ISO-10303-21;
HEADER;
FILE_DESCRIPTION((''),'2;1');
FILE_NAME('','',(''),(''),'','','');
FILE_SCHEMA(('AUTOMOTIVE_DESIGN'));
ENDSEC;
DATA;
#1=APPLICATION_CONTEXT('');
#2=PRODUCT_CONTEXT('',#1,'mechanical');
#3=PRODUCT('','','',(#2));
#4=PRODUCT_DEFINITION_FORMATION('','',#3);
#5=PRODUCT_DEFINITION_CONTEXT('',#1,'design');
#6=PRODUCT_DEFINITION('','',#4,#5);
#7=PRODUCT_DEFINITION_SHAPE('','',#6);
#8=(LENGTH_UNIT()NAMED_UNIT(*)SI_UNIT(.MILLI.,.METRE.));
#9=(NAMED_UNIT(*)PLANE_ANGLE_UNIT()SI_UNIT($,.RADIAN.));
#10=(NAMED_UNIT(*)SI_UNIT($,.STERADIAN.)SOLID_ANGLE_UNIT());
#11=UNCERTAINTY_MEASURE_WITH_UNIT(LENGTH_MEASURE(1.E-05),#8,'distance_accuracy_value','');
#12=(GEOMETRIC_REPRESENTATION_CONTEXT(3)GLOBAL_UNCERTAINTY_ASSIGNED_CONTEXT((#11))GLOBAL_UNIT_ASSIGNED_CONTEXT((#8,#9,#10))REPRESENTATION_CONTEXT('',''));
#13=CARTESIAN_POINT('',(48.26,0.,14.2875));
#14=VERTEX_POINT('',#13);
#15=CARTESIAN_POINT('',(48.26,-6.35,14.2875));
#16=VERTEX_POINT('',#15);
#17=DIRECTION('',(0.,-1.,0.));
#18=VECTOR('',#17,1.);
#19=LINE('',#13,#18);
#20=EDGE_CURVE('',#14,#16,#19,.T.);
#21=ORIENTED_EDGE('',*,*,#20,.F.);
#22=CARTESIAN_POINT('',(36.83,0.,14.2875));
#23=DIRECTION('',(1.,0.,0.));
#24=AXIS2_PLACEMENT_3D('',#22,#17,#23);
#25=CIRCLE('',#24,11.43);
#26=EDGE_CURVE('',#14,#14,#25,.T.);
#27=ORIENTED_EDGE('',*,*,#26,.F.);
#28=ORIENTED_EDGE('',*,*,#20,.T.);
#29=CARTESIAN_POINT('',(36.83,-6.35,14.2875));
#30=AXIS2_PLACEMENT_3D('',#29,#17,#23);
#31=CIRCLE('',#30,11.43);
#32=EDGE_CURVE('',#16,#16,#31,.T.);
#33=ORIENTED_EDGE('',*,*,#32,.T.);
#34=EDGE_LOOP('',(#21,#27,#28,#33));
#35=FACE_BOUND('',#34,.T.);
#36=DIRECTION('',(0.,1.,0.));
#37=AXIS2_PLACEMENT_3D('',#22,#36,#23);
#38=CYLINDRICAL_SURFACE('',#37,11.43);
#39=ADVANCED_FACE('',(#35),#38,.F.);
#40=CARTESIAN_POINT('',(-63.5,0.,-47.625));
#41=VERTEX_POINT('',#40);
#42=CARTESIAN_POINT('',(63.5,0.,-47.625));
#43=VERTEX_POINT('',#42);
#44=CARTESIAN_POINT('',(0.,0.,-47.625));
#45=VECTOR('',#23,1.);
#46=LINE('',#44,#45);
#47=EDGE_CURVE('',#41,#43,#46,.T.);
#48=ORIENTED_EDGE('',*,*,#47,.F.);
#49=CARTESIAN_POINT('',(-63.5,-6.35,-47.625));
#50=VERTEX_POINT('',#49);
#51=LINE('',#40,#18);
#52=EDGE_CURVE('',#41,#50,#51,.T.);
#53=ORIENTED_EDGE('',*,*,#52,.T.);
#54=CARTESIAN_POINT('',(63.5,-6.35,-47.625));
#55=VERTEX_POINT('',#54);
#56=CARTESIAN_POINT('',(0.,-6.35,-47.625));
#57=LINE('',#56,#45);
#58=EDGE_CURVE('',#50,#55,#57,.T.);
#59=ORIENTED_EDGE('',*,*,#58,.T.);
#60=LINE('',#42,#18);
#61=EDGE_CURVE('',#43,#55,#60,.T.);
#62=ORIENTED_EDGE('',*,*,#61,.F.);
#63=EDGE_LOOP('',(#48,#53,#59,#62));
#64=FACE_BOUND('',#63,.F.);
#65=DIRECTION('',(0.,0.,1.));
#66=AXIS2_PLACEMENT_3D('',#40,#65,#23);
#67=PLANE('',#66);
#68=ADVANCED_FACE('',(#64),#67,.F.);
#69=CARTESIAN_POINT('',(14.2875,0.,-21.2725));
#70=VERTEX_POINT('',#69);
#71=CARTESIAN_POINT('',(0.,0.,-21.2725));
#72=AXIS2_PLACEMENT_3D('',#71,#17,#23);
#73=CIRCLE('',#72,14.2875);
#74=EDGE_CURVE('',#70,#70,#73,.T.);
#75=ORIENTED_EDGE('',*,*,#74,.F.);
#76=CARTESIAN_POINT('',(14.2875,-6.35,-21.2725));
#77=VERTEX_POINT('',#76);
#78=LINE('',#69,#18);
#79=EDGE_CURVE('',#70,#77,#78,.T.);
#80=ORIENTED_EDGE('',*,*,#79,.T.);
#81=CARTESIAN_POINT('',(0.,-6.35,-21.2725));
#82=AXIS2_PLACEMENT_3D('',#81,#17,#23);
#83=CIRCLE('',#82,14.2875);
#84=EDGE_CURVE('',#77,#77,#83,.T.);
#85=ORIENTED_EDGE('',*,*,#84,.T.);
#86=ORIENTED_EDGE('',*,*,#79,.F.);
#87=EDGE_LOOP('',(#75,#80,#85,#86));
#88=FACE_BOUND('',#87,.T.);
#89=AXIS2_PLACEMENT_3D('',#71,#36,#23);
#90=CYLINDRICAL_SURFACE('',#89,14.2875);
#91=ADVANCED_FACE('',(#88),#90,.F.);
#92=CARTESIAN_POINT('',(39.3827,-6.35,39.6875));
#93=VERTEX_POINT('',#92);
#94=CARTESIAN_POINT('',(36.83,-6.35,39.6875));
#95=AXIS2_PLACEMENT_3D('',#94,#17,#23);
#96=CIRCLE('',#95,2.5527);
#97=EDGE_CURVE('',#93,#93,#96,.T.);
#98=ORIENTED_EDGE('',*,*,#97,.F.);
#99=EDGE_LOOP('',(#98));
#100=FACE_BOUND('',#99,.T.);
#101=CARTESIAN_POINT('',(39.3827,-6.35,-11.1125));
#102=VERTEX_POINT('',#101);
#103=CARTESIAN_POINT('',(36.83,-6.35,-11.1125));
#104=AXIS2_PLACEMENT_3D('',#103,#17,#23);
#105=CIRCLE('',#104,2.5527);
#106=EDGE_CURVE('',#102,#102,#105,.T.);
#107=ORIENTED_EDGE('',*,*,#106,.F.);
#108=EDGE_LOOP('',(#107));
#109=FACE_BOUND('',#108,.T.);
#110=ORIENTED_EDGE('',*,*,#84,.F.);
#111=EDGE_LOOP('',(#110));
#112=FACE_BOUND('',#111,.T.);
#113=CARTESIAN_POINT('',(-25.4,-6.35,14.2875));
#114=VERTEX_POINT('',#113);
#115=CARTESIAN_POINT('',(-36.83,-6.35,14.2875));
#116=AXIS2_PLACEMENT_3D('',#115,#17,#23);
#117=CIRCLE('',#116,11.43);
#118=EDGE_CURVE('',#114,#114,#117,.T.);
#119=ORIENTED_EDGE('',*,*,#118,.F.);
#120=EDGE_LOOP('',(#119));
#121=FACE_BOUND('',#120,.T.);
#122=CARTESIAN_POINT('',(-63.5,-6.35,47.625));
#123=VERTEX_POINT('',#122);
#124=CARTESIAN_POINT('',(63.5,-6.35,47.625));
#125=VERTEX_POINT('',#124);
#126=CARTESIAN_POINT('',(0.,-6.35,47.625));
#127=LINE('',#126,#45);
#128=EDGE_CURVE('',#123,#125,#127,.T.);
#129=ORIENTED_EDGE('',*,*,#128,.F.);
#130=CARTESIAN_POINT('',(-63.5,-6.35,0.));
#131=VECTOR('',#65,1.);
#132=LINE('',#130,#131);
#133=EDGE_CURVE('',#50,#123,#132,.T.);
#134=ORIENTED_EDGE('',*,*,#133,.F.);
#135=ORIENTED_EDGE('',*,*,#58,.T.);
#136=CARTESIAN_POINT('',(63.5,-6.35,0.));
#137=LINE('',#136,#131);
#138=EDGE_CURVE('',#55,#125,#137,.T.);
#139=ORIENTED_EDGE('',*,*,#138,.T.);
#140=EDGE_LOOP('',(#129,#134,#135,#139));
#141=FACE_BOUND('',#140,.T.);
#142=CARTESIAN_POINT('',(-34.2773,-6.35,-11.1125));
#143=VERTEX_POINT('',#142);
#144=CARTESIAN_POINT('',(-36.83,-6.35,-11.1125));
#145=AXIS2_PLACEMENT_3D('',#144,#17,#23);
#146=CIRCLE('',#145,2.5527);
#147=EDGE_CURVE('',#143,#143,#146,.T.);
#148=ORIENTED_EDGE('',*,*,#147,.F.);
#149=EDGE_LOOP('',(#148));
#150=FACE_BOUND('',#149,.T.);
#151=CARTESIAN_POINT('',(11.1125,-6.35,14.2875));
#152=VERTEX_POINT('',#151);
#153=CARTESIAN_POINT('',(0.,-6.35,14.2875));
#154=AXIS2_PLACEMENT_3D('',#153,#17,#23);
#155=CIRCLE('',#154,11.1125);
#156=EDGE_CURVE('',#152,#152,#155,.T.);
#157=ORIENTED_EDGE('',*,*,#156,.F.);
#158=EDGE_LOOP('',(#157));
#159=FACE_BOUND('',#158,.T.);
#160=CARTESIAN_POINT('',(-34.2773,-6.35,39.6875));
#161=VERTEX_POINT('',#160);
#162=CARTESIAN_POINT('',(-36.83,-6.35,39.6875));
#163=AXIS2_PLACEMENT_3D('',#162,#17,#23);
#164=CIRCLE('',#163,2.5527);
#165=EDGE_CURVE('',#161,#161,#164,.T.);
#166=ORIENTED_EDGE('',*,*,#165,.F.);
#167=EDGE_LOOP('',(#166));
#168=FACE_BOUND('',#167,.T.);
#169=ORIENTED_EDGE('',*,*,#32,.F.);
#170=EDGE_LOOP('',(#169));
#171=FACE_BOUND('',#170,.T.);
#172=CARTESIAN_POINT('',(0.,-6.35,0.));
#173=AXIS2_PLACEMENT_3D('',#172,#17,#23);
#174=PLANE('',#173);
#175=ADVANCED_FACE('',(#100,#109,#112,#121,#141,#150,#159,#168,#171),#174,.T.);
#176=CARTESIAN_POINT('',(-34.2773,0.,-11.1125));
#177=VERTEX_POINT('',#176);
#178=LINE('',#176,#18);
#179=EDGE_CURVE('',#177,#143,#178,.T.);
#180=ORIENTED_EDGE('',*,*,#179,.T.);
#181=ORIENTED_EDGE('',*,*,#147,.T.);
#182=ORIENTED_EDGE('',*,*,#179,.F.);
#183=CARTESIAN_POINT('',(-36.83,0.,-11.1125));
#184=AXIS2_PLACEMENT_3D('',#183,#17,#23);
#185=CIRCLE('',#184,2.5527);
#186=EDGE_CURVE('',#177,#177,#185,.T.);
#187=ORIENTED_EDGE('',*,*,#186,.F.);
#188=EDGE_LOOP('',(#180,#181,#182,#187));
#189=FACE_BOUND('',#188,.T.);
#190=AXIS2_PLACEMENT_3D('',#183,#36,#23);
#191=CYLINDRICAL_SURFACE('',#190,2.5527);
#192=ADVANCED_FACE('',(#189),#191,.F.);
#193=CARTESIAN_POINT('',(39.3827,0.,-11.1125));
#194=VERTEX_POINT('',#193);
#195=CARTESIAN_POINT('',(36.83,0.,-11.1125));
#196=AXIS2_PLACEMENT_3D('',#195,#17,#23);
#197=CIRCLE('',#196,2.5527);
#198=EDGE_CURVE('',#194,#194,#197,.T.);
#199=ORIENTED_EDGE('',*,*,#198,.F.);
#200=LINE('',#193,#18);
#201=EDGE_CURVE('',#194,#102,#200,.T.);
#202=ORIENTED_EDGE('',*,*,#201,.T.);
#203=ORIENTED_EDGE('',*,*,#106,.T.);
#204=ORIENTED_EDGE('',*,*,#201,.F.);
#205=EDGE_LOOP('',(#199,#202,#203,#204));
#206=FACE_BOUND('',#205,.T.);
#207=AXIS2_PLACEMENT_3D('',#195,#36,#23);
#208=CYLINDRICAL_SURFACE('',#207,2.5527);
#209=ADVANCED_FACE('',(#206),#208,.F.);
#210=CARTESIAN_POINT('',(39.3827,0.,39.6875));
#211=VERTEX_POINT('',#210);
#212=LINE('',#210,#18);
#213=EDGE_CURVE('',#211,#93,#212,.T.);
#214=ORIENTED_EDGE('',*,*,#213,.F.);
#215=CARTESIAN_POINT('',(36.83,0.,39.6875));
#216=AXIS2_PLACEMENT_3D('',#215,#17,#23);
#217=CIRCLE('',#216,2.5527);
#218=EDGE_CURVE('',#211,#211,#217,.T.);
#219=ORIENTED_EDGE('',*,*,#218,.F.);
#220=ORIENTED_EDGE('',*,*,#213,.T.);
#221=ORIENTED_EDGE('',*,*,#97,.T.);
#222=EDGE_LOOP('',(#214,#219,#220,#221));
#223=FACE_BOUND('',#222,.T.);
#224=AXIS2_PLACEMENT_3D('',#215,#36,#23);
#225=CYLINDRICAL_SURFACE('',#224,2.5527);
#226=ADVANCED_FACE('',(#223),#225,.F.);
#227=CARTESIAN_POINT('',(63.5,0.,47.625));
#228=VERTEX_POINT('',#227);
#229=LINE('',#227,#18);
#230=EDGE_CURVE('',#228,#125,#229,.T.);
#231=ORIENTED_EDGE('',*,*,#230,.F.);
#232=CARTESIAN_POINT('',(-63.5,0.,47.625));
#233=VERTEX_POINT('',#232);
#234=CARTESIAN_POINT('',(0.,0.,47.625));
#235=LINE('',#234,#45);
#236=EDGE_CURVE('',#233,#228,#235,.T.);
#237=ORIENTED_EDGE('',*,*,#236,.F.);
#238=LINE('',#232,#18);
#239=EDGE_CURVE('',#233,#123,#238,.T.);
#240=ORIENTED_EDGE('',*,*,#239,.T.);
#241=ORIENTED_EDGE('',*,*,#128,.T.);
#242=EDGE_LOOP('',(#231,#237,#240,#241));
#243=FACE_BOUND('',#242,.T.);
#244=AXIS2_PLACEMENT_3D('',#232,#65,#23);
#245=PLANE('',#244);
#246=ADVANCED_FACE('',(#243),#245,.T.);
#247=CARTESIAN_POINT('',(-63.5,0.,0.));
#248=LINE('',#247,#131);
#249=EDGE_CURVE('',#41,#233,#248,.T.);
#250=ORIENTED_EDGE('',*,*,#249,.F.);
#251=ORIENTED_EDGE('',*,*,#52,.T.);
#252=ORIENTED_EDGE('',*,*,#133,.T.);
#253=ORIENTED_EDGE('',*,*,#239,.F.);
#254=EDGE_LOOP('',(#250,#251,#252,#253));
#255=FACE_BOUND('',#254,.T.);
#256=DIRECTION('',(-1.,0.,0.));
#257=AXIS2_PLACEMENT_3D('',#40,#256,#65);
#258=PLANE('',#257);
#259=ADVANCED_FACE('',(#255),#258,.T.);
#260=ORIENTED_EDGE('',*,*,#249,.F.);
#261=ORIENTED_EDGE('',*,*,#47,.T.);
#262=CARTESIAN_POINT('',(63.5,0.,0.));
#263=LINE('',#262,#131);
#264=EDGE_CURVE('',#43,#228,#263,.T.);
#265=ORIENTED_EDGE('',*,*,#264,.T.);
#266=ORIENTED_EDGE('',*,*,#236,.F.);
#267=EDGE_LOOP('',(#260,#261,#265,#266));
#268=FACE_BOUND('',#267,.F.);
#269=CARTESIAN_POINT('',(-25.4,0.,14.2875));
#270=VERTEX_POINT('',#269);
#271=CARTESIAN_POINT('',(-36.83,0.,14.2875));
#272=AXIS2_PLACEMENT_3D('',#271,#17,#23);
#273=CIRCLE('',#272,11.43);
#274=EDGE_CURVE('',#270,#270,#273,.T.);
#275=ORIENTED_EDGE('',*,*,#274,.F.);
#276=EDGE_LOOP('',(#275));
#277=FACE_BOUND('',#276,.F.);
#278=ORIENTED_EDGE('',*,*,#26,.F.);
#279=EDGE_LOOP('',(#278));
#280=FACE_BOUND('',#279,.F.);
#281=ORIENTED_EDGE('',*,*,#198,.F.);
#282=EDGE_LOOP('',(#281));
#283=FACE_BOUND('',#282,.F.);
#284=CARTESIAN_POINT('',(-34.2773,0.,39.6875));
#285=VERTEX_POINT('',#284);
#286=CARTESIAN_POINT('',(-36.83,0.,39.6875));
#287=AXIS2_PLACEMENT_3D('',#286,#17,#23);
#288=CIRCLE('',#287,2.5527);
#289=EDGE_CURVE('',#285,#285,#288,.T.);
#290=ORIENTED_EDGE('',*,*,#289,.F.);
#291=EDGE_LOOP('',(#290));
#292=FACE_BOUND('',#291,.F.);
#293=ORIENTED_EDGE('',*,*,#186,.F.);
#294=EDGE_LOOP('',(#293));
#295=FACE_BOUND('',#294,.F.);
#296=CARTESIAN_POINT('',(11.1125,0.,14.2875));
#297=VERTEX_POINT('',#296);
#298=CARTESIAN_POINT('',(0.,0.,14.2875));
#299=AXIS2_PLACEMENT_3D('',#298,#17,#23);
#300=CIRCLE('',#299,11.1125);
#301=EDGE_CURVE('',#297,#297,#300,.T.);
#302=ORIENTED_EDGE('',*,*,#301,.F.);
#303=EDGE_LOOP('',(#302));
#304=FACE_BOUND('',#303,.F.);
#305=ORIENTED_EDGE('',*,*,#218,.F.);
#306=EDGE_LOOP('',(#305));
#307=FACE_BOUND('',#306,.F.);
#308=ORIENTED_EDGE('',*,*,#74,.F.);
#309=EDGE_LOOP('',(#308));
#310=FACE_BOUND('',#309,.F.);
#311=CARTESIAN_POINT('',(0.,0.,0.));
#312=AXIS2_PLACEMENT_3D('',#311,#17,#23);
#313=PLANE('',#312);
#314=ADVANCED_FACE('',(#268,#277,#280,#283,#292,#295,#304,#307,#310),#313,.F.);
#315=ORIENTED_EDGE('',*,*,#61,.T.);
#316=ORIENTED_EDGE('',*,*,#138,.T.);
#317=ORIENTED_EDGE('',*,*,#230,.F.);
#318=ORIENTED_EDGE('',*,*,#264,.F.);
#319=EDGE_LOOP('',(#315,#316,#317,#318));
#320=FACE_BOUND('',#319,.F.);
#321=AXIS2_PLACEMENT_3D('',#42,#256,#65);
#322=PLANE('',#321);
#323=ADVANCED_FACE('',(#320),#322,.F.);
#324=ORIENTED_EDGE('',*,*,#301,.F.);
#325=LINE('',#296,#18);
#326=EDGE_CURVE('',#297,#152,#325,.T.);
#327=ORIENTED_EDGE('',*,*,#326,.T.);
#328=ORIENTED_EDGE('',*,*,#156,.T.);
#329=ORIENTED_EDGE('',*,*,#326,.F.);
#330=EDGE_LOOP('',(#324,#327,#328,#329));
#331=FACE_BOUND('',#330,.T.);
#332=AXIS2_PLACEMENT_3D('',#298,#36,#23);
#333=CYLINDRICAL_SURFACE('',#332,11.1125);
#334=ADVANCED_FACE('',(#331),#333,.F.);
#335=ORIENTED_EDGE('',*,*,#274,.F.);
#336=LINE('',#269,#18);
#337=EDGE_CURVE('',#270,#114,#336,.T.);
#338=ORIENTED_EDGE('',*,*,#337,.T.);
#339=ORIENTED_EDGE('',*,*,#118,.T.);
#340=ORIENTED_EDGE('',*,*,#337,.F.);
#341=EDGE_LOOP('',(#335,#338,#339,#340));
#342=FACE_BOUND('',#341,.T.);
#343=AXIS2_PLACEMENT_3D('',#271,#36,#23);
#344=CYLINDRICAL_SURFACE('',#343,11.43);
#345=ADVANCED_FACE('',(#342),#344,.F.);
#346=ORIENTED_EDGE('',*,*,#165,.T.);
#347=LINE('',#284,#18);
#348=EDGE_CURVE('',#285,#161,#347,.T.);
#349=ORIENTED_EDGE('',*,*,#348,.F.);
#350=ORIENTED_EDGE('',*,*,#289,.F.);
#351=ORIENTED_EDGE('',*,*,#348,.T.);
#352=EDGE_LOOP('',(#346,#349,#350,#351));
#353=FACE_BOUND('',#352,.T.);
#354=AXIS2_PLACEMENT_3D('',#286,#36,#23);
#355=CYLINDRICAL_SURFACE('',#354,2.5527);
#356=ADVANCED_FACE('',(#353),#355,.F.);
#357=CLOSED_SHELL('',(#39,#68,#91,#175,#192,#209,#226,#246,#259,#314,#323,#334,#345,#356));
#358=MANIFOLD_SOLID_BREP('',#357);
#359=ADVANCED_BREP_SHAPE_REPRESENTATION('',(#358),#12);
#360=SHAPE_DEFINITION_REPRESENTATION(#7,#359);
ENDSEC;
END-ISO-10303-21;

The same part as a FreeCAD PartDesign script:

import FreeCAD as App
import Part
import Sketcher

V = App.Vector
Q = App.Units.Quantity


def add_polygon(sketch, points):
    """Adds a closed chain of lines whose ends are joined by coincident constraints."""
    first, n = sketch.GeometryCount, len(points)
    for a, b in zip(points, points[1:] + points[:1]):
        sketch.addGeometry(Part.LineSegment(App.Vector(*a, 0), App.Vector(*b, 0)), False)
    for i in range(n):
        sketch.addConstraint(Sketcher.Constraint("Coincident", first + i, 2, first + (i + 1) % n, 1))

doc = App.newDocument("Part")
params = doc.addObject("Spreadsheet::Sheet", "Params")
for row, (alias, value) in enumerate([
    ("sketch1_diameter", "0.9 in"),
    ("sketch1_width", "5 in"),
    ("sketch1_diameter2", "0.201 in"),
    ("sketch1_diameter3", "1.125 in"),
    ("sketch1_diameter4", "0.875 in"),
    ("pad1_length", "0.25 in"),
], start=1):
    params.set(f"A{row}", alias)
    params.set(f"B{row}", "=" + value)
    params.setAlias(f"B{row}", alias)

body = doc.addObject("PartDesign::Body", "Body")

# Sketch on XZ plane
sketch1 = body.newObject("Sketcher::SketchObject", "Sketch")
sketch1.AttachmentSupport = (doc.getObject("XZ_Plane"), [""])
sketch1.MapMode = "FlatFace"
add_polygon(sketch1, [(-63.5, 47.6), (-63.5, -47.6), (63.5, -47.6), (63.5, 47.6)])  # lines 0-3
sketch1.addGeometry(Part.Circle(V(-36.8, -11.1, 0), V(0, 0, 1), 2.6), False)  # 4
sketch1.addGeometry(Part.Circle(V(0, -21.3, 0), V(0, 0, 1), 14.3), False)  # 5
sketch1.addGeometry(Part.Circle(V(36.8, -11.1, 0), V(0, 0, 1), 2.6), False)  # 6
sketch1.addGeometry(Part.Circle(V(-36.8, 14.3, 0), V(0, 0, 1), 11.4), False)  # 7
sketch1.addGeometry(Part.Circle(V(-36.8, 39.7, 0), V(0, 0, 1), 2.6), False)  # 8
sketch1.addGeometry(Part.Circle(V(0, 14.3, 0), V(0, 0, 1), 11.1), False)  # 9
sketch1.addGeometry(Part.Circle(V(36.8, 14.3, 0), V(0, 0, 1), 11.4), False)  # 10
sketch1.addGeometry(Part.Circle(V(36.8, 39.7, 0), V(0, 0, 1), 2.6), False)  # 11
sketch1.addConstraint([
    Sketcher.Constraint("Vertical", 0),
    Sketcher.Constraint("Horizontal", 1),
    Sketcher.Constraint("Vertical", 2),
    Sketcher.Constraint("Horizontal", 3),
    Sketcher.Constraint("Equal", 4, 6),
    Sketcher.Constraint("Equal", 6, 8),
    Sketcher.Constraint("Equal", 7, 10),
    Sketcher.Constraint("Equal", 8, 11),
    Sketcher.Constraint("Symmetric", 0, 2, 2, 2, -1, 1),
    Sketcher.Constraint("Symmetric", 4, 3, 6, 3, -2),
    Sketcher.Constraint("Symmetric", 7, 3, 10, 3, -2),
    Sketcher.Constraint("Symmetric", 8, 3, 11, 3, -2),
    Sketcher.Constraint("PointOnObject", 5, 3, -2),
    Sketcher.Constraint("PointOnObject", 9, 3, -2),
    Sketcher.Constraint("Horizontal", 7, 3, 9, 3),
    Sketcher.Constraint("Vertical", 4, 3, 7, 3),
    Sketcher.Constraint("Vertical", 7, 3, 8, 3),
    Sketcher.Constraint("Diameter", 7, Q("0.9 in")),
    Sketcher.Constraint("DistanceX", 1, 1, 1, 2, Q("5 in")),
    Sketcher.Constraint("Diameter", 4, Q("0.201 in")),
    Sketcher.Constraint("Diameter", 5, Q("1.125 in")),
    Sketcher.Constraint("Diameter", 9, Q("0.875 in")),
    Sketcher.Constraint("DistanceY", 4, 3, 7, 3, Q("1 in")),
    Sketcher.Constraint("DistanceY", 7, 3, 8, 3, Q("1 in")),
    Sketcher.Constraint("DistanceY", 0, 2, 0, 1, Q("3.75 in")),
    Sketcher.Constraint("DistanceY", 5, 3, 4, 3, Q("0.4 in")),
    Sketcher.Constraint("DistanceX", 4, 3, 6, 3, Q("2.9 in")),
    Sketcher.Constraint("DistanceY", 4, 3, -1, 1, Q("0.4375 in")),
])
sketch1.setExpression("Constraints[21]", "Params.sketch1_diameter")
sketch1.setExpression("Constraints[22]", "Params.sketch1_width")
sketch1.setExpression("Constraints[23]", "Params.sketch1_diameter2")
sketch1.setExpression("Constraints[24]", "Params.sketch1_diameter3")
sketch1.setExpression("Constraints[25]", "Params.sketch1_diameter4")
pad1 = body.newObject("PartDesign::Pad", "Pad")
pad1.Profile = sketch1
pad1.setExpression("Length", "Params.pad1_length")

doc.recompute()
